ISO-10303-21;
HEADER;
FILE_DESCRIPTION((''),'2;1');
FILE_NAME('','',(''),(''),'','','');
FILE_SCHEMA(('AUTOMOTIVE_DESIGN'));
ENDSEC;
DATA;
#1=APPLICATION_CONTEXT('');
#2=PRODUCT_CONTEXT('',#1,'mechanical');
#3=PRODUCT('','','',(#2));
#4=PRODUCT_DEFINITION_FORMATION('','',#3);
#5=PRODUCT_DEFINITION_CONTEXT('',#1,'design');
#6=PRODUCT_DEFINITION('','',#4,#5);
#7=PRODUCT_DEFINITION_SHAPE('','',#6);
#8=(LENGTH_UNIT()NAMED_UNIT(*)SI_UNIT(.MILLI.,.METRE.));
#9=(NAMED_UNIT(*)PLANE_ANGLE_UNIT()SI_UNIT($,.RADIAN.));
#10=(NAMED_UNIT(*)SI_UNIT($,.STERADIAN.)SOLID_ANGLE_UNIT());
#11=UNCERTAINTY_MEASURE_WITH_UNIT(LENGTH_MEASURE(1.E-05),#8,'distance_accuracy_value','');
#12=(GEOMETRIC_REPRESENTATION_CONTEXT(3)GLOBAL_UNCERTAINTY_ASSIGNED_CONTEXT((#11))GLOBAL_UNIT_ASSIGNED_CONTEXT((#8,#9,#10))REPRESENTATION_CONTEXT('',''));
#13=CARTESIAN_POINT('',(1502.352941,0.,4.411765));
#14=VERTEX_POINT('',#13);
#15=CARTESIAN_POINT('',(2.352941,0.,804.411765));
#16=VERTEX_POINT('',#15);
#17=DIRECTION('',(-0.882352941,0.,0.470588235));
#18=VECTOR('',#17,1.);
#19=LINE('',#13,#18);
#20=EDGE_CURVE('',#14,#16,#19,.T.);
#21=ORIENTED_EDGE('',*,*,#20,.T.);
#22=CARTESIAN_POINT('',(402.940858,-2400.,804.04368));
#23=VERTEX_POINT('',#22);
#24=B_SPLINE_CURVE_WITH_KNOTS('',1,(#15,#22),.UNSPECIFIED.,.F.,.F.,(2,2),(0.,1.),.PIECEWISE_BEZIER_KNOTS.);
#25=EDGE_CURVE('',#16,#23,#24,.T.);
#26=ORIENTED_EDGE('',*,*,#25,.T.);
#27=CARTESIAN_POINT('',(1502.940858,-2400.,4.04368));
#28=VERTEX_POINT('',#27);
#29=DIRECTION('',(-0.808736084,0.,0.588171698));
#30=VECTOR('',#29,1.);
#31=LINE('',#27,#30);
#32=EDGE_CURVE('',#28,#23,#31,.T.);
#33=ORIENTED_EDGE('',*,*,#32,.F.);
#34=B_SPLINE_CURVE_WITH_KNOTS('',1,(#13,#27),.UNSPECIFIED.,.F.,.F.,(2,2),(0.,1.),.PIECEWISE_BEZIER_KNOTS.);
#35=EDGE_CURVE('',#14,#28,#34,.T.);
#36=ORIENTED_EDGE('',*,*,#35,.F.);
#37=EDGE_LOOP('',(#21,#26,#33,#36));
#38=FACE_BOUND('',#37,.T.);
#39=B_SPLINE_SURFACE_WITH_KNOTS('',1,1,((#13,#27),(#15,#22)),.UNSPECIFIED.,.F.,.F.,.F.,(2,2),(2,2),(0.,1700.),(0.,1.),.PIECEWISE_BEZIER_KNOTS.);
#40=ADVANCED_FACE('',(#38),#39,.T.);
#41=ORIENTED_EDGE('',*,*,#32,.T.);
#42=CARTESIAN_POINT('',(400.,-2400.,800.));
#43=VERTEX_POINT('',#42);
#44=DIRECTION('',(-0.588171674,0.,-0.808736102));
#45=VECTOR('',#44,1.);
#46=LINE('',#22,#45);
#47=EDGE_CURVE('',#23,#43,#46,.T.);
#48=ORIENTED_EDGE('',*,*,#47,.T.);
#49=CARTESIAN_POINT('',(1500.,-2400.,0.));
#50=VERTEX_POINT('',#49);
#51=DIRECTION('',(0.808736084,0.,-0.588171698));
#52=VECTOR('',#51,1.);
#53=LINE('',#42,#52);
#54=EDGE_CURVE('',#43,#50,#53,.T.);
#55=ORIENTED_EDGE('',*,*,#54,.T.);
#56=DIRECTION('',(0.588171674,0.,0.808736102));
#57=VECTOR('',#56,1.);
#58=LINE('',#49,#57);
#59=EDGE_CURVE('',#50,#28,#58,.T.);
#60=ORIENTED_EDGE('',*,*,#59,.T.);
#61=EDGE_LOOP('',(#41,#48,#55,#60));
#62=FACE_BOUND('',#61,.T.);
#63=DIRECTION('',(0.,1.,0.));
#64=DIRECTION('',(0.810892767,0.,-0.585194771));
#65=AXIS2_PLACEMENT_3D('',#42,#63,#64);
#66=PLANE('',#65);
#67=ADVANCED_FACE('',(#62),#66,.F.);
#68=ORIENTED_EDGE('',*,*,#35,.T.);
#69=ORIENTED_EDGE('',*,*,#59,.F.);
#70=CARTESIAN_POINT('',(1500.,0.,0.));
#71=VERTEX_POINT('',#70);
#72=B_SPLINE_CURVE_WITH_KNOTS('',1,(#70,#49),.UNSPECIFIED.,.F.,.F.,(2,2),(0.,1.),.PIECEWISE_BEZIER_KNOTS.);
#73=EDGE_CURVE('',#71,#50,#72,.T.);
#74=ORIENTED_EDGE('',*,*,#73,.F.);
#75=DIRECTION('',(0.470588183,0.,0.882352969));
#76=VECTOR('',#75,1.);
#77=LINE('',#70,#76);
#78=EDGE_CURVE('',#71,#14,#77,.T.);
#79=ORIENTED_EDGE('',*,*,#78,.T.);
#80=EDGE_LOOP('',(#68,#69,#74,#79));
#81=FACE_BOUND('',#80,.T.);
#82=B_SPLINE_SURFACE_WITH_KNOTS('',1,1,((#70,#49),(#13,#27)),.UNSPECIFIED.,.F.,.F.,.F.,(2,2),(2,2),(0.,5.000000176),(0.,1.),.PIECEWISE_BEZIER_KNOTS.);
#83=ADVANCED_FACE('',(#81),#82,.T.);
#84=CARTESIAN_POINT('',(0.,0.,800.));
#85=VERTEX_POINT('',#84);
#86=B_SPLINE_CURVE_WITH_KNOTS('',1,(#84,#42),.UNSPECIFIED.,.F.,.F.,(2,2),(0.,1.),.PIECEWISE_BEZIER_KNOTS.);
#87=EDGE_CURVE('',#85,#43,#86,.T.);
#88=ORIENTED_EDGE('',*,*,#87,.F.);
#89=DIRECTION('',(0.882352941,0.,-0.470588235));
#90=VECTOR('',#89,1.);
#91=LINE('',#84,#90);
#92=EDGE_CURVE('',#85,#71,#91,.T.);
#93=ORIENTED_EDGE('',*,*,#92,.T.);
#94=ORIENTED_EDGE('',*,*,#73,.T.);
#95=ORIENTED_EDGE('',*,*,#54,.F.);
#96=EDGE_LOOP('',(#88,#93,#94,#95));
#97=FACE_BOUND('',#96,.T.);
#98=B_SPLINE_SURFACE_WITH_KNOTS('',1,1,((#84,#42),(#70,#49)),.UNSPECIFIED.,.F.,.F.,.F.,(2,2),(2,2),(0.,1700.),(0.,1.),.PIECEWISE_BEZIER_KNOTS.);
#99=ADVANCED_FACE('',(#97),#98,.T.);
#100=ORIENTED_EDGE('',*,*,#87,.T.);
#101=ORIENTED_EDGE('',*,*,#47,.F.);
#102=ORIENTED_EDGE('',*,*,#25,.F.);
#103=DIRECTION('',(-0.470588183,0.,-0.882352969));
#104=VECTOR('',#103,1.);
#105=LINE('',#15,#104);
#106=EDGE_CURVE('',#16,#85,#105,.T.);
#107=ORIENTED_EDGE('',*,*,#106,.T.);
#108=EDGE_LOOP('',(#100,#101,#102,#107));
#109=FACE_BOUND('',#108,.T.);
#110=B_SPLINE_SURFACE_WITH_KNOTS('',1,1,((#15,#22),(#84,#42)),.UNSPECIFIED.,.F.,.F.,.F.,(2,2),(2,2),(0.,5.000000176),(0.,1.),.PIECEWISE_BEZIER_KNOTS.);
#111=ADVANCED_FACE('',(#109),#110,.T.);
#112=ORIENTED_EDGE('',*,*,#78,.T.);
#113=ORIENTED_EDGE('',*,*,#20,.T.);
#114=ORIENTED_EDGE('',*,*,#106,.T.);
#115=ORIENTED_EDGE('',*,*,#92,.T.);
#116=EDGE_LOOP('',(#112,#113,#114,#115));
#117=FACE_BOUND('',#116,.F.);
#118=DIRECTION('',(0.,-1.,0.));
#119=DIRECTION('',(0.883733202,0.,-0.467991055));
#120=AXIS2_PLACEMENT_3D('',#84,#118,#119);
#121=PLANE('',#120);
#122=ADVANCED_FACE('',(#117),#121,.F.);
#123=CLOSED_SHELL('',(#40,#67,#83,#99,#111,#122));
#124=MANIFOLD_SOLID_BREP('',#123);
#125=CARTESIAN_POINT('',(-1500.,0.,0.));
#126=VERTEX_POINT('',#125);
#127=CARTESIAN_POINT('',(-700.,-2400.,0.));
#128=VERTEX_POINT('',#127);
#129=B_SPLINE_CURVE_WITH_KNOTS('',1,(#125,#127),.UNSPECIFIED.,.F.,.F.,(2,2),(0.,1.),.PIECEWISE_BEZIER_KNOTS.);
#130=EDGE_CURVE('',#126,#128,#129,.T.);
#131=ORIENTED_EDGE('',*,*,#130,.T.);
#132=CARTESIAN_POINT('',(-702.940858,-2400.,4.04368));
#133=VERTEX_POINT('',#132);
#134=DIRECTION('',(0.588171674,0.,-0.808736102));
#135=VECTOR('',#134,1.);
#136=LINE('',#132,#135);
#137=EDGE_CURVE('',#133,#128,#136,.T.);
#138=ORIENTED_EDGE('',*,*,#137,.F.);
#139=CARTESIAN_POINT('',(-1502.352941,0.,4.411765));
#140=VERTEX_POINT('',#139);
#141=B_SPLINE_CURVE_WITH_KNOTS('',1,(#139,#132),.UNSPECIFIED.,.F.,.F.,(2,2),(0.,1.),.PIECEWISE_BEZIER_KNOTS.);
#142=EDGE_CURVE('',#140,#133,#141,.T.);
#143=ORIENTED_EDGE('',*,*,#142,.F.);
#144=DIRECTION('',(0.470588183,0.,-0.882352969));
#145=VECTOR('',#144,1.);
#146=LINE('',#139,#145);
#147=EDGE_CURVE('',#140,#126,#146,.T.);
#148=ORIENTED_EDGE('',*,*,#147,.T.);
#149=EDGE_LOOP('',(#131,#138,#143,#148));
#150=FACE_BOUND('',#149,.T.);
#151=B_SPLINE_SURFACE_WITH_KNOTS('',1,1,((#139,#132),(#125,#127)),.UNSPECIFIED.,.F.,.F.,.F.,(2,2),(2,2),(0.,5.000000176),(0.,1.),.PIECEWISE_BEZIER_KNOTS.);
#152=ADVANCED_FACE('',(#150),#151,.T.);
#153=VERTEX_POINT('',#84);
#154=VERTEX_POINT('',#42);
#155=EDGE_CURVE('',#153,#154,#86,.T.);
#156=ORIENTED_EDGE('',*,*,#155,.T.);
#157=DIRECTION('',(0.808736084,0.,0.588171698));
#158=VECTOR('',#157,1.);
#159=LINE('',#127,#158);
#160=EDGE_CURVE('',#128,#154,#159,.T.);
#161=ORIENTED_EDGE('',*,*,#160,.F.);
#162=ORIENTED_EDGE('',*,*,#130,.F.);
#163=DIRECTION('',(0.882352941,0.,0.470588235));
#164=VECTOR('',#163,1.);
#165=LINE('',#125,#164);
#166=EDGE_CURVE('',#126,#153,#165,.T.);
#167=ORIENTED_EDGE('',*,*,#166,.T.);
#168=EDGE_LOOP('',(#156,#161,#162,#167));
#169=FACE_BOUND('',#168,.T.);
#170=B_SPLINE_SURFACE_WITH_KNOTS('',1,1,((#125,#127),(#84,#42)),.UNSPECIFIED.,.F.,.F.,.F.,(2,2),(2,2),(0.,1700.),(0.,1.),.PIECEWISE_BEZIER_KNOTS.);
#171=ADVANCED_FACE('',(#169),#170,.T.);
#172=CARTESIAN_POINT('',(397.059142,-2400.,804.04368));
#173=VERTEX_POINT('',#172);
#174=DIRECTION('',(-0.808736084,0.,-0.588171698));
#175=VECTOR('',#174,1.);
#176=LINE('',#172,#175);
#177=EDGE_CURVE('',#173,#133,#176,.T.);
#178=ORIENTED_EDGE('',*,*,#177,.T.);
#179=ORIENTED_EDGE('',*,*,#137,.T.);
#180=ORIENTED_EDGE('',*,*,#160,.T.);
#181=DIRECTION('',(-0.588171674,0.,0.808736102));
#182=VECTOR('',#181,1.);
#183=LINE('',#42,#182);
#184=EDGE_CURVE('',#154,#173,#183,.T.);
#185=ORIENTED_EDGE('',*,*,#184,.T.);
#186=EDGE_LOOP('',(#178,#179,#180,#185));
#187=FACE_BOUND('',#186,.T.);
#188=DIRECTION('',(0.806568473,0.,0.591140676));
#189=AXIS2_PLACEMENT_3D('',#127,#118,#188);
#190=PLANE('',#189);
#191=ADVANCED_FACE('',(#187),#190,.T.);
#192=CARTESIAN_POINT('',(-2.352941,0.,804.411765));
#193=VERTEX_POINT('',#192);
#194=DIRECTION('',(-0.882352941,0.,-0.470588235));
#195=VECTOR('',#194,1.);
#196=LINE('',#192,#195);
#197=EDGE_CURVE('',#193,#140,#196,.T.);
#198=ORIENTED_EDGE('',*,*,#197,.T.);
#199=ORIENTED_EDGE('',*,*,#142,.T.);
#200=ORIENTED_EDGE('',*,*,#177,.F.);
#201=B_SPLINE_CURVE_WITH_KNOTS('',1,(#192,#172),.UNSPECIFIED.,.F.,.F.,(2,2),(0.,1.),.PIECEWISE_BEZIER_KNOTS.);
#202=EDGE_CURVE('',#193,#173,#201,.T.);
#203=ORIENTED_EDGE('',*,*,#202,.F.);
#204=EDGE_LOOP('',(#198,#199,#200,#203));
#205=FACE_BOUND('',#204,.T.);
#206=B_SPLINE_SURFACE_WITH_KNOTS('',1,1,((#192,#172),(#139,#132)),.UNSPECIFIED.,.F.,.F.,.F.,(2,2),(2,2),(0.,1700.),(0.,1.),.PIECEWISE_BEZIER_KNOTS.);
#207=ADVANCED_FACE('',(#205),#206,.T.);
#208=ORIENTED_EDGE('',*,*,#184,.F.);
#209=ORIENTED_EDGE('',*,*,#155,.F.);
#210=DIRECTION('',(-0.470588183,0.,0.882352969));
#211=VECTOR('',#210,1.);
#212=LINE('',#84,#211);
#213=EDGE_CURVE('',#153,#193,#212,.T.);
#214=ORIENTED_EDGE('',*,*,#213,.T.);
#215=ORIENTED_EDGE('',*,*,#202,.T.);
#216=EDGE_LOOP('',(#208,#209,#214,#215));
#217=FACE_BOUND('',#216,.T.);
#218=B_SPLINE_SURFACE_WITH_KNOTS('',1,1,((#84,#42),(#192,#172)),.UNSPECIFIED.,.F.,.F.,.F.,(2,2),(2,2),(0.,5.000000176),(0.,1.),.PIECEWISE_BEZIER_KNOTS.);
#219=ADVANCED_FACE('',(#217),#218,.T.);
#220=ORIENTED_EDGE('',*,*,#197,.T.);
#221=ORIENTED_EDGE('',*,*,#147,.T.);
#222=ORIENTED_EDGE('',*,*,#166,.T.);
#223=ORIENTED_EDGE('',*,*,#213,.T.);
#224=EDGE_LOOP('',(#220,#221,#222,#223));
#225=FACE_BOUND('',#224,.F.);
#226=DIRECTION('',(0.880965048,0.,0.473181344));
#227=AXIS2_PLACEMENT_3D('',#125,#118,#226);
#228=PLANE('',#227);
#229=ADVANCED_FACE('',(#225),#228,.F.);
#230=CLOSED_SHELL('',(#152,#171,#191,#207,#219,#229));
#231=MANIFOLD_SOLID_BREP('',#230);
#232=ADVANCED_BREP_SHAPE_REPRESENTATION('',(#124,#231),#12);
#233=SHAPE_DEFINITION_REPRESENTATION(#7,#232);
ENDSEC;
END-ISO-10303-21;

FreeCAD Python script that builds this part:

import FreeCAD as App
import Part
import Sketcher
from FreeCAD import Vector

doc = App.newDocument("Part")
body = doc.addObject("PartDesign::Body", "Body")

sketch1 = body.newObject("Sketcher::SketchObject", "Sketch")
sketch1.AttachmentSupport = (doc.getObject("XZ_Plane"), [""])
sketch1.MapMode = "FlatFace"
sketch1.addGeometry([
    Part.LineSegment(Vector(0, 800, 0), Vector(1500, 0, 0)),
    Part.LineSegment(Vector(1500, 0, 0), Vector(1502, 4, 0)),
    Part.LineSegment(Vector(1502, 4, 0), Vector(2, 804, 0)),
    Part.LineSegment(Vector(2, 804, 0), Vector(0, 800, 0)),
], False)
sketch1.addConstraint([
    Sketcher.Constraint("Coincident", 0, 2, 1, 1),
    Sketcher.Constraint("Coincident", 1, 2, 2, 1),
    Sketcher.Constraint("Coincident", 2, 2, 3, 1),
    Sketcher.Constraint("Coincident", 3, 2, 0, 1),
    Sketcher.Constraint("PointOnObject", 0, 2, -1),
    Sketcher.Constraint("PointOnObject", 3, 2, -2),
    Sketcher.Constraint("Perpendicular", 0, 1),
    Sketcher.Constraint("Perpendicular", 1, 2),
    Sketcher.Constraint("Perpendicular", 2, 3),
    Sketcher.Constraint("Distance", 0, 1700.0),
    Sketcher.Constraint("Distance", 1, 5.0),
    Sketcher.Constraint("DistanceX", -1, 1, 0, 2, 1500.0),
])

sketch2 = body.newObject("Sketcher::SketchObject", "Sketch001")
sketch2.AttachmentSupport = (doc.getObject("XZ_Plane"), [""])
sketch2.MapMode = "FlatFace"
sketch2.AttachmentOffset = App.Placement(Vector(0, 0, 2400), App.Rotation())
sketch2.addGeometry([
    Part.LineSegment(Vector(400, 800, 0), Vector(1500, 0, 0)),
    Part.LineSegment(Vector(1500, 0, 0), Vector(1502.9, 4, 0)),
    Part.LineSegment(Vector(1502.9, 4, 0), Vector(402.9, 804, 0)),
    Part.LineSegment(Vector(402.9, 804, 0), Vector(400, 800, 0)),
], False)
sketch2.addConstraint([
    Sketcher.Constraint("Coincident", 0, 2, 1, 1),
    Sketcher.Constraint("Coincident", 1, 2, 2, 1),
    Sketcher.Constraint("Coincident", 2, 2, 3, 1),
    Sketcher.Constraint("Coincident", 3, 2, 0, 1),
    Sketcher.Constraint("PointOnObject", 0, 2, -1),
    Sketcher.Constraint("Perpendicular", 0, 1),
    Sketcher.Constraint("Perpendicular", 1, 2),
    Sketcher.Constraint("Perpendicular", 2, 3),
    Sketcher.Constraint("Distance", 1, 4.999999),
    Sketcher.Constraint("DistanceX", -1, 1, 0, 2, 1500.0),
    Sketcher.Constraint("DistanceX", -1, 1, 3, 2, 400.0),
    Sketcher.Constraint("DistanceY", -1, 1, 3, 2, 800.0),
])

additiveloft = body.newObject("PartDesign::AdditiveLoft", "AdditiveLoft")
additiveloft.Profile = sketch1
additiveloft.Sections = [sketch2]
body2 = doc.addObject("PartDesign::Body", "Body001")

sketch3 = body2.newObject("Sketcher::SketchObject", "Sketch002")
sketch3.AttachmentSupport = (doc.getObject("XZ_Plane001"), [""])
sketch3.MapMode = "FlatFace"
sketch3.addGeometry([
    Part.LineSegment(Vector(-1500, 0, 0), Vector(0, 800, 0)),
    Part.LineSegment(Vector(0, 800, 0), Vector(-2, 804, 0)),
    Part.LineSegment(Vector(-2, 804, 0), Vector(-1502, 4, 0)),
    Part.LineSegment(Vector(-1502, 4, 0), Vector(-1500, 0, 0)),
], False)
sketch3.addConstraint([
    Sketcher.Constraint("Coincident", 0, 2, 1, 1),
    Sketcher.Constraint("Coincident", 1, 2, 2, 1),
    Sketcher.Constraint("Coincident", 2, 2, 3, 1),
    Sketcher.Constraint("Coincident", 3, 2, 0, 1),
    Sketcher.Constraint("PointOnObject", 0, 2, -2),
    Sketcher.Constraint("PointOnObject", 3, 2, -1),
    Sketcher.Constraint("Perpendicular", 0, 1),
    Sketcher.Constraint("Perpendicular", 1, 2),
    Sketcher.Constraint("Perpendicular", 2, 3),
    Sketcher.Constraint("Distance", 0, 1700.0),
    Sketcher.Constraint("Distance", 1, 5.0),
    Sketcher.Constraint("DistanceY", -1, 1, 0, 2, 800.0),
])

sketch4 = body2.newObject("Sketcher::SketchObject", "Sketch003")
sketch4.AttachmentSupport = (doc.getObject("XZ_Plane001"), [""])
sketch4.MapMode = "FlatFace"
sketch4.AttachmentOffset = App.Placement(Vector(0, 0, 2400), App.Rotation())
sketch4.addGeometry([
    Part.LineSegment(Vector(-700, 0, 0), Vector(400, 800, 0)),
    Part.LineSegment(Vector(400, 800, 0), Vector(397.1, 804, 0)),
    Part.LineSegment(Vector(397.1, 804, 0), Vector(-702.9, 4, 0)),
    Part.LineSegment(Vector(-702.9, 4, 0), Vector(-700, 0, 0)),
], False)
sketch4.addConstraint([
    Sketcher.Constraint("Coincident", 0, 2, 1, 1),
    Sketcher.Constraint("Coincident", 1, 2, 2, 1),
    Sketcher.Constraint("Coincident", 2, 2, 3, 1),
    Sketcher.Constraint("Coincident", 3, 2, 0, 1),
    Sketcher.Constraint("PointOnObject", 3, 2, -1),
    Sketcher.Constraint("Perpendicular", 0, 1),
    Sketcher.Constraint("Perpendicular", 1, 2),
    Sketcher.Constraint("Perpendicular", 2, 3),
    Sketcher.Constraint("Distance", 1, 4.999999),
    Sketcher.Constraint("DistanceX", -1, 1, 0, 2, 400.0),
    Sketcher.Constraint("DistanceY", -1, 1, 0, 2, 800.0),
    Sketcher.Constraint("DistanceX", 3, 2, -1, 1, 700.0),
])

additiveloft2 = body2.newObject("PartDesign::AdditiveLoft", "AdditiveLoft001")
additiveloft2.Profile = sketch3
additiveloft2.Sections = [sketch4]

doc.recompute()
